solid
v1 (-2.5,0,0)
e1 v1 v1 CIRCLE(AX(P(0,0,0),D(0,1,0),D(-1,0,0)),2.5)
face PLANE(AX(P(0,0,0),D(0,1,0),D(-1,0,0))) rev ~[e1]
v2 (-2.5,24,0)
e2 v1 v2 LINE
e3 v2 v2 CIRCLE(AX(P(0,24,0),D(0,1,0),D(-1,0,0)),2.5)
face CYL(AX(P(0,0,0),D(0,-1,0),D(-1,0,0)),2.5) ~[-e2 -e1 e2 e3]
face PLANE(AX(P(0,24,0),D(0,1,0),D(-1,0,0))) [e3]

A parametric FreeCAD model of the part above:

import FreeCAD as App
import Part
import Sketcher

V = App.Vector
Q = App.Units.Quantity

doc = App.newDocument("Part")
params = doc.addObject("Spreadsheet::Sheet", "Params")
for row, (alias, value) in enumerate([
    ("sketch1_diameter", "5 mm"),
    ("pad1_length", "24 mm"),
], start=1):
    params.set(f"A{row}", alias)
    params.set(f"B{row}", "=" + value)
    params.setAlias(f"B{row}", alias)

body = doc.addObject("PartDesign::Body", "Body")

# Sketch on XZ plane
sketch1 = body.newObject("Sketcher::SketchObject", "Sketch")
sketch1.AttachmentSupport = (doc.getObject("XZ_Plane"), [""])
sketch1.MapMode = "FlatFace"
sketch1.addGeometry(Part.Circle(V(0, 0, 0), V(0, 0, 1), 2.5), False)
sketch1.addConstraint([
    Sketcher.Constraint("Coincident", 0, 3, -1, 1),
    Sketcher.Constraint("Diameter", 0, Q("5 mm")),
])
sketch1.setExpression("Constraints[1]", "Params.sketch1_diameter")
pad1 = body.newObject("PartDesign::Pad", "Pad")
pad1.Profile = sketch1
pad1.setExpression("Length", "Params.pad1_length")
pad1.Reversed = True

doc.recompute()
